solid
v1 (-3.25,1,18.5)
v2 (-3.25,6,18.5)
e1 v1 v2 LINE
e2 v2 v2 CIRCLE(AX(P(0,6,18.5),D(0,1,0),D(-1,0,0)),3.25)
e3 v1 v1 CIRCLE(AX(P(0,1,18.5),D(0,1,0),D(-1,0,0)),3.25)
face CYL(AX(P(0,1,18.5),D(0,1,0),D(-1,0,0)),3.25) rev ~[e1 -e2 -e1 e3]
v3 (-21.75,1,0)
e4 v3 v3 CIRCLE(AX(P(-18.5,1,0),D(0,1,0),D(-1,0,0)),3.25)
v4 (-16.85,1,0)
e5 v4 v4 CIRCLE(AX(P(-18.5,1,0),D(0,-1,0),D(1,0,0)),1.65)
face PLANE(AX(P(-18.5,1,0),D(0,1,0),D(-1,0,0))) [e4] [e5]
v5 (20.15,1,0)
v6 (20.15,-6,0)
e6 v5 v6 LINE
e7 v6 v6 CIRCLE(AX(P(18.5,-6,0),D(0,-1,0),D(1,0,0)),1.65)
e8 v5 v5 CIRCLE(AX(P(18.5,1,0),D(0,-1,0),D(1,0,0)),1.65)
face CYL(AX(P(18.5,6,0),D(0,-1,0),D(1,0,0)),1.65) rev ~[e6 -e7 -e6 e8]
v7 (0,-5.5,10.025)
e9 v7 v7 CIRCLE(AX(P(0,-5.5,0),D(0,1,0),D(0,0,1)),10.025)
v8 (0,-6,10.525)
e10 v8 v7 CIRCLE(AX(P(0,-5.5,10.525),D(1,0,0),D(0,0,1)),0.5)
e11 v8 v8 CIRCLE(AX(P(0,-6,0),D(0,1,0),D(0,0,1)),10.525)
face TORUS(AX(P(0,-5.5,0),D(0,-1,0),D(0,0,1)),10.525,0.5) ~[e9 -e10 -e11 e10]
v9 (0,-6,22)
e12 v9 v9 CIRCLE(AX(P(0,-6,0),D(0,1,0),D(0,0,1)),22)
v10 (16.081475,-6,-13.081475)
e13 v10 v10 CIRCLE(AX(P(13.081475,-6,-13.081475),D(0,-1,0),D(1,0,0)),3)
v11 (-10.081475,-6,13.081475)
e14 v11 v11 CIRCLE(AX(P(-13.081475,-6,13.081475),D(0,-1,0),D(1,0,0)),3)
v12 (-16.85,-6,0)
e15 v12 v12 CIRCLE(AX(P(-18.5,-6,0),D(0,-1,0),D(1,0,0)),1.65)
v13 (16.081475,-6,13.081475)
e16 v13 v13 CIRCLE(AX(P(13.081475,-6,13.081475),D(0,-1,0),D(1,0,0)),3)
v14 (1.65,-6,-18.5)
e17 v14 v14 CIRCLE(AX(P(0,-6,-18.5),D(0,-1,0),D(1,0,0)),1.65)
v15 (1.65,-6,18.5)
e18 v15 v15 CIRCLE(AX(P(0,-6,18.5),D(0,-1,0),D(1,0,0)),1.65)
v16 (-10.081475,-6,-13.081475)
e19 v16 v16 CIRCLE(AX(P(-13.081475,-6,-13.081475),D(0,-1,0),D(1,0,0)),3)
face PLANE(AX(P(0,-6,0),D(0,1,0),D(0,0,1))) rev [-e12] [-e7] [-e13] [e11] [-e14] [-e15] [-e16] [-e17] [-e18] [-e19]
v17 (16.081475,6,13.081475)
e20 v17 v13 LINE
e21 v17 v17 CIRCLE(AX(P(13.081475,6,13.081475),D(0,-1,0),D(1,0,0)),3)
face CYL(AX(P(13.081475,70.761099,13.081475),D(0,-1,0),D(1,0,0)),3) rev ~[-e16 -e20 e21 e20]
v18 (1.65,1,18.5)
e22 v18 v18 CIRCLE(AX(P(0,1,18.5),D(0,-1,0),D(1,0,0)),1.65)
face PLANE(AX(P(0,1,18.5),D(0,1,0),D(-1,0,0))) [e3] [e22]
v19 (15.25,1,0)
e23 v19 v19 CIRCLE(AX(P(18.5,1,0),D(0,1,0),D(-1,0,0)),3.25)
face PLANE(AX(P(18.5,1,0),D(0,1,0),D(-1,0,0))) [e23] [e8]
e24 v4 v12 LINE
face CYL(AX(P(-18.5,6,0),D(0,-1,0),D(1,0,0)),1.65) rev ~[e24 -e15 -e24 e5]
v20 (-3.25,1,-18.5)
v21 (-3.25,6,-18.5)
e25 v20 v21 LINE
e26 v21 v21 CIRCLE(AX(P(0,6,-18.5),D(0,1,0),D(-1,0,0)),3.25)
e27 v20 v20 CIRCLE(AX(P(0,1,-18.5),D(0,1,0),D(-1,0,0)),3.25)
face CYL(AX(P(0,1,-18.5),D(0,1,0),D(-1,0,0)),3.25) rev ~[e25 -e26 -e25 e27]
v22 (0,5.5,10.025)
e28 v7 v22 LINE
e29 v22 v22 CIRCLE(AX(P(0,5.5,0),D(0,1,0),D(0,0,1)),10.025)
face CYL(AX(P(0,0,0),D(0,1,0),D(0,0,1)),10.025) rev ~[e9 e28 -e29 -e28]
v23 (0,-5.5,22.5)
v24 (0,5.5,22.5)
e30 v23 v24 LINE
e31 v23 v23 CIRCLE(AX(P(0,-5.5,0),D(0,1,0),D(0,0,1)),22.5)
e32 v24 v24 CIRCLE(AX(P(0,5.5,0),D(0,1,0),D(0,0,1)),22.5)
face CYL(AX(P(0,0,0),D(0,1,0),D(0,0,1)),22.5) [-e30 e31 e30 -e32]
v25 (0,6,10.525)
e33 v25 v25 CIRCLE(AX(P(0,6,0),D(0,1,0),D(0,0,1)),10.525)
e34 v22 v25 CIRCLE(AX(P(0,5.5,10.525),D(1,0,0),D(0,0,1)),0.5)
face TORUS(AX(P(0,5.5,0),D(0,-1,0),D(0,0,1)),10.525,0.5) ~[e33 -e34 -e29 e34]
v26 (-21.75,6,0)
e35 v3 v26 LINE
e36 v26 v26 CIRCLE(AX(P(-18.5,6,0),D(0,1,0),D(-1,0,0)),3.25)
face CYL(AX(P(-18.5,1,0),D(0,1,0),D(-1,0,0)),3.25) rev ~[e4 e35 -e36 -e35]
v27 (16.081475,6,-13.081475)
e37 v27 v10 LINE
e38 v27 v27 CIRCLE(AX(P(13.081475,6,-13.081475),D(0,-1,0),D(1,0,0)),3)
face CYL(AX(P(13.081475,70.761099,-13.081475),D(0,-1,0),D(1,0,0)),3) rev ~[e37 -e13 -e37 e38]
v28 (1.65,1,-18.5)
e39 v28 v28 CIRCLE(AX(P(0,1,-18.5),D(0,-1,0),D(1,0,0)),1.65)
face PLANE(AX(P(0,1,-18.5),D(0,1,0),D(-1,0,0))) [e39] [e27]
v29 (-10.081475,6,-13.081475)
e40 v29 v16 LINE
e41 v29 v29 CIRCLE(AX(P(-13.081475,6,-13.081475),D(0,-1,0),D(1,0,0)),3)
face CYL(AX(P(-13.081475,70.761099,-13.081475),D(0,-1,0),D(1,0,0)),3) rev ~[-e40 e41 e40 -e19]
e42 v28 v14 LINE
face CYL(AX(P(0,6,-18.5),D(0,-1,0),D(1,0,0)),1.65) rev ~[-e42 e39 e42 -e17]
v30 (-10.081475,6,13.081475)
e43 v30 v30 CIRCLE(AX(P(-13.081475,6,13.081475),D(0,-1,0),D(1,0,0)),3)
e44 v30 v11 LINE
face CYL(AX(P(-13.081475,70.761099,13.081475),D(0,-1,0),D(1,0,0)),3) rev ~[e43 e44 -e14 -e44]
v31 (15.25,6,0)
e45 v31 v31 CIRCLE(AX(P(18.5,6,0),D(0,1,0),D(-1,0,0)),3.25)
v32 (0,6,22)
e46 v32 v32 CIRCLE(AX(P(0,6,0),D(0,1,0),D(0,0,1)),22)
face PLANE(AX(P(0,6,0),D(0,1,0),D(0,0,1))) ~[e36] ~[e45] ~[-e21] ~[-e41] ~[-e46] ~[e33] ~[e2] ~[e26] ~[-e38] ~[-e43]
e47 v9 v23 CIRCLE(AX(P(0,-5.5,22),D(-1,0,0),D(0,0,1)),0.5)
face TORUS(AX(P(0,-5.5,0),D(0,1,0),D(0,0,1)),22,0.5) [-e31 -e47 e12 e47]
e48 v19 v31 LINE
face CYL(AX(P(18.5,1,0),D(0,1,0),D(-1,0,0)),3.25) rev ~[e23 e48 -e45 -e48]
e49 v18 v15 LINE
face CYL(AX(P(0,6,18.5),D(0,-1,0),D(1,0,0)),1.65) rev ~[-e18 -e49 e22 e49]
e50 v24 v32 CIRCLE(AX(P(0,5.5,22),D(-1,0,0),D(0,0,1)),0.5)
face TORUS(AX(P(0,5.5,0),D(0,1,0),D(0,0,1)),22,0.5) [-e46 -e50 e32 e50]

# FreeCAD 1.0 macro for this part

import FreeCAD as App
import Part
import Sketcher
Q = App.Units.Quantity


def edges_at(feature, points):
    """Names of the edges that pass closest to the given points."""
    edges = feature.Shape.Edges
    near = lambda p: min(range(len(edges)), key=lambda i: edges[i].distToShape(Part.Vertex(*p))[0])
    return sorted({f"Edge{near(p) + 1}" for p in points})

doc = App.newDocument("Part")
body = doc.addObject("PartDesign::Body", "Body")

# Sketch on YZ plane
sketch1 = doc.addObject("Sketcher::SketchObject", "Sketch")
body.addObject(sketch1)
sketch1.AttachmentSupport = (doc.YZ_Plane, [""])
sketch1.MapMode = "FlatFace"
sketch1.addGeometry([
    Part.LineSegment(App.Vector(-6, 22, 0), App.Vector(-6, 10, 0)),
    Part.LineSegment(App.Vector(-6, 10, 0), App.Vector(6, 10, 0)),
    Part.LineSegment(App.Vector(6, 10, 0), App.Vector(6, 22, 0)),
    Part.LineSegment(App.Vector(6, 22, 0), App.Vector(-6, 22, 0)),
], False)
sketch1.addConstraint([
    Sketcher.Constraint("Coincident", 0, 2, 1, 1),
    Sketcher.Constraint("Coincident", 1, 2, 2, 1),
    Sketcher.Constraint("Coincident", 2, 2, 3, 1),
    Sketcher.Constraint("Coincident", 3, 2, 0, 1),
    Sketcher.Constraint("Vertical", 0),
    Sketcher.Constraint("Horizontal", 1),
    Sketcher.Constraint("Vertical", 2),
    Sketcher.Constraint("Horizontal", 3),
    Sketcher.Constraint("DistanceX", 1, 1, 1, 2, Q("12 mm")),
    Sketcher.Constraint("DistanceX", 0, 2, -1, 1, Q("6 mm")),
    Sketcher.Constraint("DistanceY", -1, 1, 2, 2, Q("22.5 mm")),
    Sketcher.Constraint("DistanceY", 0, 2, 0, 1, Q("12.475 mm")),
])
revolution = doc.addObject("PartDesign::Revolution", "Revolution")
body.addObject(revolution)
revolution.Profile = sketch1
revolution.ReferenceAxis = (sketch1, ["H_Axis"])
revolution.Angle = 360

# Sketch on XZ plane
sketch2 = doc.addObject("Sketcher::SketchObject", "Sketch001")
body.addObject(sketch2)
sketch2.AttachmentSupport = (doc.XZ_Plane, [""])
sketch2.MapMode = "FlatFace"
sketch2.AttachmentOffset = App.Placement(App.Vector(0, 0, -6), App.Rotation())
sketch2.addGeometry([
    Part.Circle(App.Vector(13.1, 13.1, 0), App.Vector(0, 0, 1), 3),
    Part.Circle(App.Vector(-13.1, 13.1, 0), App.Vector(0, 0, 1), 3),
    Part.Circle(App.Vector(13.1, -13.1, 0), App.Vector(0, 0, 1), 3),
    Part.Circle(App.Vector(-13.1, -13.1, 0), App.Vector(0, 0, 1), 3),
], False)
sketch2.addConstraint([
    Sketcher.Constraint("Equal", 0, 1),
    Sketcher.Constraint("Equal", 1, 2),
    Sketcher.Constraint("Equal", 2, 3),
    Sketcher.Constraint("Symmetric", 1, 3, 2, 3, -1, 1),
    Sketcher.Constraint("Symmetric", 0, 3, 3, 3, -1, 1),
    Sketcher.Constraint("Symmetric", 0, 3, 1, 3, -2),
    Sketcher.Constraint("Diameter", 0, Q("6 mm")),
    Sketcher.Constraint("DistanceX", 1, 3, 0, 3, Q("26.16295 mm")),
    Sketcher.Constraint("DistanceY", 2, 3, 0, 3, Q("26.16295 mm")),
])
doc.recompute()
hole = doc.addObject("PartDesign::Hole", "Hole")
body.addObject(hole)
hole.Profile = sketch2
hole.ThreadType = "None"
hole.Diameter = 6
hole.DepthType = "ThroughAll"
hole.Reversed = True

# Sketch on XZ plane
sketch3 = doc.addObject("Sketcher::SketchObject", "Sketch002")
body.addObject(sketch3)
sketch3.AttachmentSupport = (doc.XZ_Plane, [""])
sketch3.MapMode = "FlatFace"
sketch3.AttachmentOffset = App.Placement(App.Vector(0, 0, -6), App.Rotation())
sketch3.addGeometry([
    Part.Circle(App.Vector(18.5, 0, 0), App.Vector(0, 0, 1), 1.6),
    Part.Circle(App.Vector(0, -18.5, 0), App.Vector(0, 0, 1), 1.6),
    Part.Circle(App.Vector(-18.5, 0, 0), App.Vector(0, 0, 1), 1.6),
    Part.Circle(App.Vector(0, 18.5, 0), App.Vector(0, 0, 1), 1.6),
], False)
sketch3.addConstraint([
    Sketcher.Constraint("Equal", 0, 1),
    Sketcher.Constraint("Equal", 1, 2),
    Sketcher.Constraint("Equal", 2, 3),
    Sketcher.Constraint("Symmetric", 0, 3, 2, 3, -1, 1),
    Sketcher.Constraint("Symmetric", 1, 3, 3, 3, -1, 1),
    Sketcher.Constraint("PointOnObject", 0, 3, -1),
    Sketcher.Constraint("PointOnObject", 1, 3, -2),
    Sketcher.Constraint("Diameter", 0, Q("3.3 mm")),
    Sketcher.Constraint("DistanceX", 2, 3, 0, 3, Q("37 mm")),
    Sketcher.Constraint("DistanceY", 1, 3, 3, 3, Q("37 mm")),
])
doc.recompute()
hole2 = doc.addObject("PartDesign::Hole", "Hole001")
body.addObject(hole2)
hole2.Profile = sketch3
hole2.ThreadType = "None"
hole2.Diameter = 3.3
hole2.DepthType = "ThroughAll"
hole2.HoleCutType = "Counterbore"
hole2.HoleCutDiameter = 6.5
hole2.HoleCutDepth = 5
hole2.Reversed = True
doc.recompute()

fillet = doc.addObject("PartDesign::Fillet", "Fillet")
body.addObject(fillet)
fillet.Base = (hole2, edges_at(hole2, [
    (0, 6, -22.5),
    (0, -6, -22.5),
    (0, 6, -10.025),
    (0, -6, -10.025),
    (0, 0, 10.025),
]))
fillet.Radius = 0.5

doc.recompute()
